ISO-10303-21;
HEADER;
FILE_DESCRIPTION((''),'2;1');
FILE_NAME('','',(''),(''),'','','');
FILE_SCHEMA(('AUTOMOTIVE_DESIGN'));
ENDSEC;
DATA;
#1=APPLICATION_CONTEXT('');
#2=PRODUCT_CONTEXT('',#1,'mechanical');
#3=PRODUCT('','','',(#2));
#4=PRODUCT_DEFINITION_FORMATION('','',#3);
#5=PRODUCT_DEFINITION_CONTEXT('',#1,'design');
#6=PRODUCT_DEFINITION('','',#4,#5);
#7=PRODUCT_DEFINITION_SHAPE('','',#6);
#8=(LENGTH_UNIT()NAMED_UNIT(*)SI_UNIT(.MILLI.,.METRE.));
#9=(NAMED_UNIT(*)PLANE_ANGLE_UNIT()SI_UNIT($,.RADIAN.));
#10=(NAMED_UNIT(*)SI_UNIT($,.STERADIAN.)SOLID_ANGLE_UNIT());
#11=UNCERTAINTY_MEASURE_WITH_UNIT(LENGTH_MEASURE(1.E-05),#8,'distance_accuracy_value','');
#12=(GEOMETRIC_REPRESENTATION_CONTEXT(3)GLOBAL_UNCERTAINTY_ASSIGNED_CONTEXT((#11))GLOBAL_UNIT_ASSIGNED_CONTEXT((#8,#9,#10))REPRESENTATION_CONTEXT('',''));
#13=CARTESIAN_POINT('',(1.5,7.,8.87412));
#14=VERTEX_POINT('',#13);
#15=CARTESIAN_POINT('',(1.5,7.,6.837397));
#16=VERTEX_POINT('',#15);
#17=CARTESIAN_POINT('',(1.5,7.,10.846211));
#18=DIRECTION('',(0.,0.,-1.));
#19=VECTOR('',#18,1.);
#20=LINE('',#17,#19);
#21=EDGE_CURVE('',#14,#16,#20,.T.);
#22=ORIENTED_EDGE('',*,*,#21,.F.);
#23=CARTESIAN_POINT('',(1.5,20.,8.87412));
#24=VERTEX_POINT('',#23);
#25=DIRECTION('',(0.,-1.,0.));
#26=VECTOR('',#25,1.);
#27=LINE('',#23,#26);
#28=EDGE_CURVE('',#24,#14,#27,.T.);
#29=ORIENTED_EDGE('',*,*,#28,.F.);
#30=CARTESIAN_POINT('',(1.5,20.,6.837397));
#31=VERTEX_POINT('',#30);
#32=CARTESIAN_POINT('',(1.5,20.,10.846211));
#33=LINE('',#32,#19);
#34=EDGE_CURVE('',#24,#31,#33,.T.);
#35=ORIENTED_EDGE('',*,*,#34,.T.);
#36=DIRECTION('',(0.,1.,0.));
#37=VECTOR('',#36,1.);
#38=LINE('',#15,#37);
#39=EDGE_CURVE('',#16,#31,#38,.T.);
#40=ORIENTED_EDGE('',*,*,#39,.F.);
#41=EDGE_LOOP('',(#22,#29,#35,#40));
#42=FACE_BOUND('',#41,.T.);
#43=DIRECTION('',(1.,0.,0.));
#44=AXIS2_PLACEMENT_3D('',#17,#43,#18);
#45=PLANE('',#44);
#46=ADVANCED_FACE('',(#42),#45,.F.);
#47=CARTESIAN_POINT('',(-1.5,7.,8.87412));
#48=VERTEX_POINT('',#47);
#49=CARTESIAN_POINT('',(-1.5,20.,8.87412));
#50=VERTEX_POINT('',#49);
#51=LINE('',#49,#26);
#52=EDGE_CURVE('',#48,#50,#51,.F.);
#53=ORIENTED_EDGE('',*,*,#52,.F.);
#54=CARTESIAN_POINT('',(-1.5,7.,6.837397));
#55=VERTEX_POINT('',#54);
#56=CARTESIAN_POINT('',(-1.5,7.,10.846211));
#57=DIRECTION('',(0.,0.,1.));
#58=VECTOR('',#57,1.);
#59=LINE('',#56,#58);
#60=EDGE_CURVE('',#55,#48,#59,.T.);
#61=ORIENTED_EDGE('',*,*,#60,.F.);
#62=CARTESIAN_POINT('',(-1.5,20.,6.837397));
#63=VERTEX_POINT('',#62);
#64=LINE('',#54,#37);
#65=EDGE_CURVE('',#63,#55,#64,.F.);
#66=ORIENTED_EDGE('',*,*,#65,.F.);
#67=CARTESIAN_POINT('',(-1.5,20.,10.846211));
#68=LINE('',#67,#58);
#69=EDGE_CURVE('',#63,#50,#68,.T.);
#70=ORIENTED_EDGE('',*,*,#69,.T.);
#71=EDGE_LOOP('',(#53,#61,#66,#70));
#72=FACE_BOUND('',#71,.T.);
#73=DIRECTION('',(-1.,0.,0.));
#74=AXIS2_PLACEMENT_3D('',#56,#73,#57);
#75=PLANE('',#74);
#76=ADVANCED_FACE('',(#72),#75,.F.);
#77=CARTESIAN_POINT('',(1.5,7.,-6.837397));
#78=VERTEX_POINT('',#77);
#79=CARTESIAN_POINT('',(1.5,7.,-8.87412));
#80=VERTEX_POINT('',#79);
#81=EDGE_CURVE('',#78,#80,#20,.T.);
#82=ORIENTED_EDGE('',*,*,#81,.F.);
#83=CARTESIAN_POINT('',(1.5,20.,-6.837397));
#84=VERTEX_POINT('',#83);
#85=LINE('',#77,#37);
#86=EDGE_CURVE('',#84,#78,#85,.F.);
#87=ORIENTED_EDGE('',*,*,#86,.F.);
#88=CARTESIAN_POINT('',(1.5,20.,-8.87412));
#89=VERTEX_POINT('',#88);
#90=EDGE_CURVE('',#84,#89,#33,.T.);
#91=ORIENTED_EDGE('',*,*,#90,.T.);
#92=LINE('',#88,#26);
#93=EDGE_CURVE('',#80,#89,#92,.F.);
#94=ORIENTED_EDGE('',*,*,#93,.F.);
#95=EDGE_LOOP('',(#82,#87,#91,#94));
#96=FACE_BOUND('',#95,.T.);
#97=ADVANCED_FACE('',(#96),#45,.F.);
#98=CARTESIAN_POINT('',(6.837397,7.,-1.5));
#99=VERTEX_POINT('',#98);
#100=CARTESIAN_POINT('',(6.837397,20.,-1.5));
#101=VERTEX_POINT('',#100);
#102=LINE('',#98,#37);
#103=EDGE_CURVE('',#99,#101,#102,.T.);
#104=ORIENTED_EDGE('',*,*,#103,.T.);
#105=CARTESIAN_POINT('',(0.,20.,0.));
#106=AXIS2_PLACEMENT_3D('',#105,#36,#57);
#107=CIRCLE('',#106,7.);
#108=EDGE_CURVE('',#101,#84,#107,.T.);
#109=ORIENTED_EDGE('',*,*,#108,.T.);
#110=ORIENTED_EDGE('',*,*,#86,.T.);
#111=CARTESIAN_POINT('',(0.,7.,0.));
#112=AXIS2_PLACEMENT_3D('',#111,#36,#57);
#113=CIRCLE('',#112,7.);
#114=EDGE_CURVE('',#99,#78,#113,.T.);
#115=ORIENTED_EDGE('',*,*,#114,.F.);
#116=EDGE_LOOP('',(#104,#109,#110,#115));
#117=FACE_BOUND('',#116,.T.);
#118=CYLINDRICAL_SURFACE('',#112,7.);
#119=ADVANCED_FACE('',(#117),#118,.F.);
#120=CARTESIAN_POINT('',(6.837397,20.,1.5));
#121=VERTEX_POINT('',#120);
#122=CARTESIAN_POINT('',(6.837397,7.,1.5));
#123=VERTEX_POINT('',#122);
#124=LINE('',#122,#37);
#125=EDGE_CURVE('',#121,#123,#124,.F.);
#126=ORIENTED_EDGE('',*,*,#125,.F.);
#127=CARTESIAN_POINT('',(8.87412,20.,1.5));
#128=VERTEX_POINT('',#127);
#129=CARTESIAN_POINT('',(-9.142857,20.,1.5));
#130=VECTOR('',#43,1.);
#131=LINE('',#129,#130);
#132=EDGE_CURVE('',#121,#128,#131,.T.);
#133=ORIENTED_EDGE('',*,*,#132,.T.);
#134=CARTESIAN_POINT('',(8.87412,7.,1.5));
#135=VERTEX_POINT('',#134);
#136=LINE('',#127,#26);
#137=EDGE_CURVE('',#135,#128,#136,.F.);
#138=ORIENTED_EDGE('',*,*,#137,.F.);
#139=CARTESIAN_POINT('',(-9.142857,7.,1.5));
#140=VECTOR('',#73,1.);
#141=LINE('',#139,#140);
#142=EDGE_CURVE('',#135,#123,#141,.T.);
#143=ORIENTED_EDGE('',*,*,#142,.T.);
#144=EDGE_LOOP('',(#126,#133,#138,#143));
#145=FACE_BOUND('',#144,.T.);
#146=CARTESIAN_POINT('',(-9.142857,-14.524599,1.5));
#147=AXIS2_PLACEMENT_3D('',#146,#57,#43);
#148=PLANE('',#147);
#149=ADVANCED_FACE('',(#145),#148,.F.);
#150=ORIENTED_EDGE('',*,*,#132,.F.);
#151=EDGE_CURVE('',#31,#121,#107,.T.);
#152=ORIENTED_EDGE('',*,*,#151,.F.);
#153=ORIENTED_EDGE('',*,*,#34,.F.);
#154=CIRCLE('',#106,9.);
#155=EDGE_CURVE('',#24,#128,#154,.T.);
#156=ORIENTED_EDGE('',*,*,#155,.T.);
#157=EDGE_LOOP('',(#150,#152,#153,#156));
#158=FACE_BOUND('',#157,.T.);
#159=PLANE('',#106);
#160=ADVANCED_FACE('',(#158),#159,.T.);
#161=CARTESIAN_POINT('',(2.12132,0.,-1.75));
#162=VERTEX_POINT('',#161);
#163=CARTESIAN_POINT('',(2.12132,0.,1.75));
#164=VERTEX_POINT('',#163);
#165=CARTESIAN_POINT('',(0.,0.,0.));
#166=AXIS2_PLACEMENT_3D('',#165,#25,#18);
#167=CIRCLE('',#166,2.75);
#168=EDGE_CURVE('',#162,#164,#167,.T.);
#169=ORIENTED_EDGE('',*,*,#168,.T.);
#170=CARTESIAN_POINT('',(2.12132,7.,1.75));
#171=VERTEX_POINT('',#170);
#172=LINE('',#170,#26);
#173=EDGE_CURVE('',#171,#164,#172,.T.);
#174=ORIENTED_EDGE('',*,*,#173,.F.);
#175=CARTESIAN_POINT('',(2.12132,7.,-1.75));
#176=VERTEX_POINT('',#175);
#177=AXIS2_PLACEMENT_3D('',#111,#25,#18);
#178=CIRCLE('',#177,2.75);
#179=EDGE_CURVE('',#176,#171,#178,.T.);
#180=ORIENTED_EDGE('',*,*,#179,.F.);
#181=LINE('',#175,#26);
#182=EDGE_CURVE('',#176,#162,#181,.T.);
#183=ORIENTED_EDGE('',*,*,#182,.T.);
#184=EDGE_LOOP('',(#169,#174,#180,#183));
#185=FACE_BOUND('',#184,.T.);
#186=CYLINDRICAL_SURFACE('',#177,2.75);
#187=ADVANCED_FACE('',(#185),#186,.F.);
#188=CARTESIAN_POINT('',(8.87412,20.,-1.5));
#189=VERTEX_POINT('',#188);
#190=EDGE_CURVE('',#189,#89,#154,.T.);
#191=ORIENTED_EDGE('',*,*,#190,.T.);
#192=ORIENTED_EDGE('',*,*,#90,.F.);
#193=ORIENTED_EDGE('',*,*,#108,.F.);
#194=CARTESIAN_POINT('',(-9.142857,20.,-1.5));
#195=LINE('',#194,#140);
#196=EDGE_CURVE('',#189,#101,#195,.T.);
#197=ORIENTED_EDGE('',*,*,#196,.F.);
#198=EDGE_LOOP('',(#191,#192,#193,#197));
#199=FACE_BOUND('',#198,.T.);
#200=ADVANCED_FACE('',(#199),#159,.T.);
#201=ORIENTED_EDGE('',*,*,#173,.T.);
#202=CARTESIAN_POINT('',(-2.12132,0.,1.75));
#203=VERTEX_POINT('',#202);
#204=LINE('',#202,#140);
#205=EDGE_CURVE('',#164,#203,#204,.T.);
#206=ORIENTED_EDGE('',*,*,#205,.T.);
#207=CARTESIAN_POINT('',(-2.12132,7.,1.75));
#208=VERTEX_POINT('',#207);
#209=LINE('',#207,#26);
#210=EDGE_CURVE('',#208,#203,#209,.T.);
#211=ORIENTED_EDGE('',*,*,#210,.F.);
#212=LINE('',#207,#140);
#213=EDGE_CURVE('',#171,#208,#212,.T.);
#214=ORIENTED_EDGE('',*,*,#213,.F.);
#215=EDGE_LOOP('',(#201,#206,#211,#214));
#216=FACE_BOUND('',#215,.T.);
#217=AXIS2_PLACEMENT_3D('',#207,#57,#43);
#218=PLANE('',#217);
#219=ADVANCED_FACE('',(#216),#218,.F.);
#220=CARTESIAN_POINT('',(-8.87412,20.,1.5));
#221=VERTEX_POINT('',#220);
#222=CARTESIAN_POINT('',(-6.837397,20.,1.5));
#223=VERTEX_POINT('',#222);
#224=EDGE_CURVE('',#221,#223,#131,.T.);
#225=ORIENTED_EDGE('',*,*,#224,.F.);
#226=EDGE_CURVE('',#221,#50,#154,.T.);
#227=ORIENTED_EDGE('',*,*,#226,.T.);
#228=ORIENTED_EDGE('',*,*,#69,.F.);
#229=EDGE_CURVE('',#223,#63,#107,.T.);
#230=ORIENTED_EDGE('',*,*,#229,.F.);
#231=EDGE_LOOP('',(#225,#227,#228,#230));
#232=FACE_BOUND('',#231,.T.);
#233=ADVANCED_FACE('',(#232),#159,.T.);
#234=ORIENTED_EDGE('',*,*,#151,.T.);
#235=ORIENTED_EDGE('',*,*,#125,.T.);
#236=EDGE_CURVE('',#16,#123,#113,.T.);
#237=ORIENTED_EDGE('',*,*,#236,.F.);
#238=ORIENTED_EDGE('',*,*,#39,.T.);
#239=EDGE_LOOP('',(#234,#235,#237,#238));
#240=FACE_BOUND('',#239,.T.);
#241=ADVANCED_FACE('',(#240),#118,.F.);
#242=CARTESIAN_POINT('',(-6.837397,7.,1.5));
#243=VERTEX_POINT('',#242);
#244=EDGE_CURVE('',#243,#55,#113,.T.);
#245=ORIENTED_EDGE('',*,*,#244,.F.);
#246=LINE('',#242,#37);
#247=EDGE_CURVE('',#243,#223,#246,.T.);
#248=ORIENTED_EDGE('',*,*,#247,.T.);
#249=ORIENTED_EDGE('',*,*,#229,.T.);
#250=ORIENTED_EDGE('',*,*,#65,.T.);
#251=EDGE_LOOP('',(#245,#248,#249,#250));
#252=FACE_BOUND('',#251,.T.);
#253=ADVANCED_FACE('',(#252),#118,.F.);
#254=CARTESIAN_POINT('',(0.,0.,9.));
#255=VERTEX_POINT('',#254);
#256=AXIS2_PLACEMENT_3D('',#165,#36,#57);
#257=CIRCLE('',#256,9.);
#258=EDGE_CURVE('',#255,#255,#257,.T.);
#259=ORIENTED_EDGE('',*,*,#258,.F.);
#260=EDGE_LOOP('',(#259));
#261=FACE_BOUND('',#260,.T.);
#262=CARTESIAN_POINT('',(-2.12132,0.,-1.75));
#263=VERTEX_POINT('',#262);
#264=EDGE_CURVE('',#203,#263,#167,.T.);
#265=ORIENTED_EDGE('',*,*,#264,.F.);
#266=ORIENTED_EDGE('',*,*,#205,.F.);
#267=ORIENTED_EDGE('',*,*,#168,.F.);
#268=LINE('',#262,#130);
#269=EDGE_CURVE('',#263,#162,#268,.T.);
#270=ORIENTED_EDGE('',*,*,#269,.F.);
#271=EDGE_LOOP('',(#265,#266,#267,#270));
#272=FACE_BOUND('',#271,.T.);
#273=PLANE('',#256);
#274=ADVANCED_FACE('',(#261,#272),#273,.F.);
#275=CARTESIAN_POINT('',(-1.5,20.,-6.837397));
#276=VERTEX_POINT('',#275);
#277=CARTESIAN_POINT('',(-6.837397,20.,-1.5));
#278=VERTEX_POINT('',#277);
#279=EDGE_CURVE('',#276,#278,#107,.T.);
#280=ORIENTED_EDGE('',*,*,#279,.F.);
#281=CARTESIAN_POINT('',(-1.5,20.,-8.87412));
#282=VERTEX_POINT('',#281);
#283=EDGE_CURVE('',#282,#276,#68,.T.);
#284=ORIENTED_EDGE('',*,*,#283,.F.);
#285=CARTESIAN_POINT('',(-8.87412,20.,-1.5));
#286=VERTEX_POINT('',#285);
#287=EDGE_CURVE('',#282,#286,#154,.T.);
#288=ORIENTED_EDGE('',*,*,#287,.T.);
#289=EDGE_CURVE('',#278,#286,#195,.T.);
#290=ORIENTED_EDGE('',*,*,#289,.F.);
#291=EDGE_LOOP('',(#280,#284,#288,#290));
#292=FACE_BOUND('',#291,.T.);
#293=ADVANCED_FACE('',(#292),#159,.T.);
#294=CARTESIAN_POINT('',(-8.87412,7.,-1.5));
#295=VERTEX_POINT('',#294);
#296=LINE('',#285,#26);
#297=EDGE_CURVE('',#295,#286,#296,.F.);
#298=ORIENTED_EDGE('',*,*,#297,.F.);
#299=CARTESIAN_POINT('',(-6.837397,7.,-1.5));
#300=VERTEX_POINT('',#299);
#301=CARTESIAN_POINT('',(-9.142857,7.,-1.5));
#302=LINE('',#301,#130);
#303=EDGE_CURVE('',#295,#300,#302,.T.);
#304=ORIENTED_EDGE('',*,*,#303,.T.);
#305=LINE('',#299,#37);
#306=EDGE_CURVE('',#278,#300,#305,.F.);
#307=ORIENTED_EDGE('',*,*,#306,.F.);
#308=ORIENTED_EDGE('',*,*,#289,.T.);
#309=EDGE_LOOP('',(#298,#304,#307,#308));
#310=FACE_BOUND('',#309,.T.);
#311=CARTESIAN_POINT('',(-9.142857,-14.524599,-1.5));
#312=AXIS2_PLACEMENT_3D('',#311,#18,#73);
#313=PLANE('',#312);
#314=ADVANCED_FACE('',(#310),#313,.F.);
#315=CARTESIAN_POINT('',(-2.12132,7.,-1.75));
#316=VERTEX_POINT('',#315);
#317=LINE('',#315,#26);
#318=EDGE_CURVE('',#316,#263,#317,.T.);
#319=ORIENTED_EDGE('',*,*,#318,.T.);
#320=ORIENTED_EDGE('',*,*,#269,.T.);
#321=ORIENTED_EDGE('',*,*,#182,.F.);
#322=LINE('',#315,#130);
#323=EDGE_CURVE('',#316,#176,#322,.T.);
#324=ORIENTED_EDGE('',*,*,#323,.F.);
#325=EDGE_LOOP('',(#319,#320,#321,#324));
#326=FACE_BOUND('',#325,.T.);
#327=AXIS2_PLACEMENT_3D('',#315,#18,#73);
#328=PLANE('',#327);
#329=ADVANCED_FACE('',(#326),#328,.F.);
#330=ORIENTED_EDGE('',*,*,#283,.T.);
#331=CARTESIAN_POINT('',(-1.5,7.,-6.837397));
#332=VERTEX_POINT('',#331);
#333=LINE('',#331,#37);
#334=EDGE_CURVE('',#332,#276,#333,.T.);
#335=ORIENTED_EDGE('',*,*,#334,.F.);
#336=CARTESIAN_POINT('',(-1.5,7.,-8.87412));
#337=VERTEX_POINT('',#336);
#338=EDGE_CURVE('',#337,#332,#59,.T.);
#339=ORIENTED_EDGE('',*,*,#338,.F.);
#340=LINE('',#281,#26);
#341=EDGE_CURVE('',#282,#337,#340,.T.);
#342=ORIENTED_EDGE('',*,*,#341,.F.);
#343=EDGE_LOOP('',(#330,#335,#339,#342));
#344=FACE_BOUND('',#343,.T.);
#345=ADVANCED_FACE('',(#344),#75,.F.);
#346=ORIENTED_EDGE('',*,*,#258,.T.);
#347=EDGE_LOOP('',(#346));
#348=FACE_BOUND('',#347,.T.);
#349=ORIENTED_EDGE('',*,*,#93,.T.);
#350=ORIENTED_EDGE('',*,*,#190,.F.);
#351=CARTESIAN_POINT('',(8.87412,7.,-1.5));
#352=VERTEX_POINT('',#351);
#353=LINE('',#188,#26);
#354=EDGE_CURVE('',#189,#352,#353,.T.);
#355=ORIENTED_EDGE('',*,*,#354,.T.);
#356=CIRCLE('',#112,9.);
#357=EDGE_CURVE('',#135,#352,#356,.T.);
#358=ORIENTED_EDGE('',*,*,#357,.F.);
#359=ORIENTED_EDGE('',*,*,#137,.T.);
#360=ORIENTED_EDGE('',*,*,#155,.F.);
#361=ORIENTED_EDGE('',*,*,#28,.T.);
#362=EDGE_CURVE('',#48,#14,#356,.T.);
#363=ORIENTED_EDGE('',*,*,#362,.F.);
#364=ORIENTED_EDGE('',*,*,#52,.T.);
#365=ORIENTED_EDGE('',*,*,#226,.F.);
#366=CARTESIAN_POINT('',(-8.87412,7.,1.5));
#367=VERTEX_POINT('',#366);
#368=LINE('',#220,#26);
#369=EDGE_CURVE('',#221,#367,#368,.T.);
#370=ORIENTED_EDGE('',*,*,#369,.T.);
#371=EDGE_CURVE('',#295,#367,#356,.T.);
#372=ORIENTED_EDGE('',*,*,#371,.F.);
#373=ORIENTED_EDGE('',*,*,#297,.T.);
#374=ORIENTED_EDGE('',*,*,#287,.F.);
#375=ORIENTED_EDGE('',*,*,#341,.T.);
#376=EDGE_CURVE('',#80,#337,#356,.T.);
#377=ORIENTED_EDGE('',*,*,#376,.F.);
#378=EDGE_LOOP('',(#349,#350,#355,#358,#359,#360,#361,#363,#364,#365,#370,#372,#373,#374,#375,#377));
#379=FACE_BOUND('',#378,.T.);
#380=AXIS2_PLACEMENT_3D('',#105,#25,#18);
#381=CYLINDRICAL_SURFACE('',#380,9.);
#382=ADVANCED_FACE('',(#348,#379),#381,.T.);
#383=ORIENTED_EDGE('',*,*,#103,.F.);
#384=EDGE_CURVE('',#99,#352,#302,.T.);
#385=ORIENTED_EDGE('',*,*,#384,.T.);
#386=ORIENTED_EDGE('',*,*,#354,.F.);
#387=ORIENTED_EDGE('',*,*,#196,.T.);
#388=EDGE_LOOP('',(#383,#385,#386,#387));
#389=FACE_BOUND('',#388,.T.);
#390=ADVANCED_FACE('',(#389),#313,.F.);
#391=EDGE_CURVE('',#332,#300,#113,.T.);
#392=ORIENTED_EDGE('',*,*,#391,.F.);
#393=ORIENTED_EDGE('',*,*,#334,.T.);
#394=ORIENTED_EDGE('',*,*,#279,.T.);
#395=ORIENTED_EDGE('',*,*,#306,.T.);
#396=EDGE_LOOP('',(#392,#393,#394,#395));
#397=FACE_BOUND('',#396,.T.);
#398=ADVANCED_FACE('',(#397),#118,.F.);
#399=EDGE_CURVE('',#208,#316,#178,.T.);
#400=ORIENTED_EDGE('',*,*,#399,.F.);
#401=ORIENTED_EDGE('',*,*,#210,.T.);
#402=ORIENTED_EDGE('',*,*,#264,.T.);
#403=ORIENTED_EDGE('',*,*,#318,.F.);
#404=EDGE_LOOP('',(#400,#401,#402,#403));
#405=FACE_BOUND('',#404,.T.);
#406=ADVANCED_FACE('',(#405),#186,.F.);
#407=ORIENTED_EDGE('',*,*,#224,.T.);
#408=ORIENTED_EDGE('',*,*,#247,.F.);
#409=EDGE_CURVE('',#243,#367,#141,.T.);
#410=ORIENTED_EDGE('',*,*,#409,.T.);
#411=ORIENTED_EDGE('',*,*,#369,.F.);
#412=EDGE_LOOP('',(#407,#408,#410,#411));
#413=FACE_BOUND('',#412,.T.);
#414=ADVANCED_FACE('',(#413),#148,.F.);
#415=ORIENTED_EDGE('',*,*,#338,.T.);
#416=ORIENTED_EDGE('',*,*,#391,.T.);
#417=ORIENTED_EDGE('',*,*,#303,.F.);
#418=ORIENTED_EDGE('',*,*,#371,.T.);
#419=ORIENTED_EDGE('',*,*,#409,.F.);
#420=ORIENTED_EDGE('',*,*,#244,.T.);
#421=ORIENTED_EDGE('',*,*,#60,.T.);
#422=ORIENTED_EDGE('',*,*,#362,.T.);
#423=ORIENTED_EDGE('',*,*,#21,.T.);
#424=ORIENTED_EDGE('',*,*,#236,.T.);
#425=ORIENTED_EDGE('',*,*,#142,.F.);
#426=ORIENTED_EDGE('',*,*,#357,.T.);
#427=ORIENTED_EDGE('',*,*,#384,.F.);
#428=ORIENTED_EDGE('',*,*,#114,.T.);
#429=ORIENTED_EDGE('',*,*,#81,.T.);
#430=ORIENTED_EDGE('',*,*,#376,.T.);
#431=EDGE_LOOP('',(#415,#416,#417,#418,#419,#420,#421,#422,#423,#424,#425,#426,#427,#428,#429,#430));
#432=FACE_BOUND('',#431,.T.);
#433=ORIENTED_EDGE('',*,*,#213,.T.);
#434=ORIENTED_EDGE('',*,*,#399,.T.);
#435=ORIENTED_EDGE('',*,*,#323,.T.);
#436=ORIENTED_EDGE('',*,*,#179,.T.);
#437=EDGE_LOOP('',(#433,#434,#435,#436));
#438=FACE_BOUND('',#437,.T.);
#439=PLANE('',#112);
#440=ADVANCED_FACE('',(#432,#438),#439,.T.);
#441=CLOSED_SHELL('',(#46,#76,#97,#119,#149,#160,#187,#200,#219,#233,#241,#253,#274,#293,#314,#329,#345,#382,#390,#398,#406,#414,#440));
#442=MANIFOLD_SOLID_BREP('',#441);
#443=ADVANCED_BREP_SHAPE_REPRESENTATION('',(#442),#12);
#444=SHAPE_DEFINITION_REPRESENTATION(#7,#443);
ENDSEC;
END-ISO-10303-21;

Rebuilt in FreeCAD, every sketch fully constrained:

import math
import FreeCAD as App
import Part
import Sketcher
Q = App.Units.Quantity

doc = App.newDocument("Part")
body = doc.addObject("PartDesign::Body", "Body")

# Sketch on XZ plane
sketch1 = body.newObject("Sketcher::SketchObject", "Sketch")
sketch1.AttachmentSupport = (doc.getObject("XZ_Plane"), [""])
sketch1.MapMode = "FlatFace"
sketch1.addGeometry(Part.Circle(App.Vector(0, 0, 0), App.Vector(0, 0, 1), 9), False)
sketch1.addConstraint([
    Sketcher.Constraint("Coincident", 0, 3, -1, 1),
    Sketcher.Constraint("Diameter", 0, Q("18 mm")),
])
pad1 = body.newObject("PartDesign::Pad", "Pad")
pad1.Profile = sketch1
pad1.Length = 20
pad1.Reversed = True

# Sketch on XZ plane
sketch2 = body.newObject("Sketcher::SketchObject", "Sketch001")
sketch2.AttachmentSupport = (doc.getObject("XZ_Plane"), [""])
sketch2.MapMode = "FlatFace"
sketch2.addGeometry([
    Part.LineSegment(App.Vector(-2.1, -1.8, 0), App.Vector(2.1, -1.8, 0)),
    Part.ArcOfCircle(Part.Circle(App.Vector(0, 0, 0), App.Vector(0, 0, 1), 2.8), math.radians(-40), math.radians(40)),
    Part.LineSegment(App.Vector(2.1, 1.8, 0), App.Vector(-2.1, 1.8, 0)),
    Part.ArcOfCircle(Part.Circle(App.Vector(0, 0, 0), App.Vector(0, 0, 1), 2.8), math.radians(140), math.radians(220)),
], False)
sketch2.addConstraint([
    Sketcher.Constraint("Coincident", 0, 2, 1, 1),
    Sketcher.Constraint("Coincident", 1, 2, 2, 1),
    Sketcher.Constraint("Coincident", 2, 2, 3, 1),
    Sketcher.Constraint("Coincident", 3, 2, 0, 1),
    Sketcher.Constraint("Horizontal", 0),
    Sketcher.Constraint("Horizontal", 2),
    Sketcher.Constraint("Coincident", 1, 3, -1, 1),
    Sketcher.Constraint("Coincident", 3, 3, -1, 1),
    Sketcher.Constraint("Equal", 1, 3),
    Sketcher.Constraint("Vertical", 0, 2, 1, 2),
    Sketcher.Constraint("Radius", 1, Q("2.75 mm")),
    Sketcher.Constraint("DistanceY", 0, 2, 1, 2, Q("3.5 mm")),
])
pocket1 = body.newObject("PartDesign::Pocket", "Pocket")
pocket1.Profile = sketch2
pocket1.Length = 7

# Sketch on XZ plane
sketch3 = body.newObject("Sketcher::SketchObject", "Sketch002")
sketch3.AttachmentSupport = (doc.getObject("XZ_Plane"), [""])
sketch3.MapMode = "FlatFace"
sketch3.AttachmentOffset = App.Placement(App.Vector(0, 0, -20), App.Rotation())
sketch3.addGeometry(Part.Circle(App.Vector(0, 0, 0), App.Vector(0, 0, 1), 7), False)
sketch3.addConstraint([
    Sketcher.Constraint("Coincident", 0, 3, -1, 1),
    Sketcher.Constraint("Diameter", 0, Q("14 mm")),
])
pocket2 = body.newObject("PartDesign::Pocket", "Pocket001")
pocket2.Profile = sketch3
pocket2.Length = 13
pocket2.Reversed = True

# Sketch on XZ plane
sketch4 = body.newObject("Sketcher::SketchObject", "Sketch003")
sketch4.AttachmentSupport = (doc.getObject("XZ_Plane"), [""])
sketch4.MapMode = "FlatFace"
sketch4.AttachmentOffset = App.Placement(App.Vector(0, 0, -20), App.Rotation())
sketch4.addGeometry([
    Part.LineSegment(App.Vector(-1.5, -10.9, 0), App.Vector(-1.5, 10.8, 0)),
    Part.ArcOfCircle(Part.Circle(App.Vector(0, 10.8, 0), App.Vector(0, 0, 1), 1.5), math.radians(0), math.radians(180)),
    Part.LineSegment(App.Vector(1.5, 10.8, 0), App.Vector(1.5, -10.9, 0)),
    Part.ArcOfCircle(Part.Circle(App.Vector(0, -10.9, 0), App.Vector(0, 0, 1), 1.5), math.radians(180), math.radians(360)),
], False)
sketch4.addConstraint([
    Sketcher.Constraint("Tangent", 0, 2, 1, 2),
    Sketcher.Constraint("Tangent", 1, 1, 2, 1),
    Sketcher.Constraint("Tangent", 2, 2, 3, 2),
    Sketcher.Constraint("Tangent", 3, 1, 0, 1),
    Sketcher.Constraint("Vertical", 0),
    Sketcher.Constraint("Vertical", 2),
    Sketcher.Constraint("PointOnObject", 1, 3, -2),
    Sketcher.Constraint("Radius", 1, Q("1.5 mm")),
    Sketcher.Constraint("DistanceY", 0, 1, 0, 2, Q("21.781949 mm")),
    Sketcher.Constraint("DistanceY", -1, 1, 1, 3, Q("10.846211 mm")),
])
pocket3 = body.newObject("PartDesign::Pocket", "Pocket002")
pocket3.Profile = sketch4
pocket3.Length = 13
pocket3.Reversed = True

# Sketch on XZ plane
sketch5 = body.newObject("Sketcher::SketchObject", "Sketch004")
sketch5.AttachmentSupport = (doc.getObject("XZ_Plane"), [""])
sketch5.MapMode = "FlatFace"
sketch5.AttachmentOffset = App.Placement(App.Vector(0, 0, -20), App.Rotation())
sketch5.addGeometry([
    Part.LineSegment(App.Vector(9.2, -1.5, 0), App.Vector(-9.1, -1.5, 0)),
    Part.ArcOfCircle(Part.Circle(App.Vector(-9.1, 0, 0), App.Vector(0, 0, 1), 1.5), math.radians(90), math.radians(270)),
    Part.LineSegment(App.Vector(-9.1, 1.5, 0), App.Vector(9.2, 1.5, 0)),
    Part.ArcOfCircle(Part.Circle(App.Vector(9.2, 0, 0), App.Vector(0, 0, 1), 1.5), math.radians(-90), math.radians(90)),
], False)
sketch5.addConstraint([
    Sketcher.Constraint("Tangent", 0, 2, 1, 2),
    Sketcher.Constraint("Tangent", 1, 1, 2, 1),
    Sketcher.Constraint("Tangent", 2, 2, 3, 2),
    Sketcher.Constraint("Tangent", 3, 1, 0, 1),
    Sketcher.Constraint("Horizontal", 0),
    Sketcher.Constraint("Horizontal", 2),
    Sketcher.Constraint("PointOnObject", 1, 3, -1),
    Sketcher.Constraint("Radius", 1, Q("1.5 mm")),
    Sketcher.Constraint("DistanceX", 0, 2, 0, 1, Q("18.314511 mm")),
    Sketcher.Constraint("DistanceX", 1, 3, -1, 1, Q("9.142857 mm")),
])
pocket4 = body.newObject("PartDesign::Pocket", "Pocket003")
pocket4.Profile = sketch5
pocket4.Length = 13
pocket4.Reversed = True

doc.recompute()
